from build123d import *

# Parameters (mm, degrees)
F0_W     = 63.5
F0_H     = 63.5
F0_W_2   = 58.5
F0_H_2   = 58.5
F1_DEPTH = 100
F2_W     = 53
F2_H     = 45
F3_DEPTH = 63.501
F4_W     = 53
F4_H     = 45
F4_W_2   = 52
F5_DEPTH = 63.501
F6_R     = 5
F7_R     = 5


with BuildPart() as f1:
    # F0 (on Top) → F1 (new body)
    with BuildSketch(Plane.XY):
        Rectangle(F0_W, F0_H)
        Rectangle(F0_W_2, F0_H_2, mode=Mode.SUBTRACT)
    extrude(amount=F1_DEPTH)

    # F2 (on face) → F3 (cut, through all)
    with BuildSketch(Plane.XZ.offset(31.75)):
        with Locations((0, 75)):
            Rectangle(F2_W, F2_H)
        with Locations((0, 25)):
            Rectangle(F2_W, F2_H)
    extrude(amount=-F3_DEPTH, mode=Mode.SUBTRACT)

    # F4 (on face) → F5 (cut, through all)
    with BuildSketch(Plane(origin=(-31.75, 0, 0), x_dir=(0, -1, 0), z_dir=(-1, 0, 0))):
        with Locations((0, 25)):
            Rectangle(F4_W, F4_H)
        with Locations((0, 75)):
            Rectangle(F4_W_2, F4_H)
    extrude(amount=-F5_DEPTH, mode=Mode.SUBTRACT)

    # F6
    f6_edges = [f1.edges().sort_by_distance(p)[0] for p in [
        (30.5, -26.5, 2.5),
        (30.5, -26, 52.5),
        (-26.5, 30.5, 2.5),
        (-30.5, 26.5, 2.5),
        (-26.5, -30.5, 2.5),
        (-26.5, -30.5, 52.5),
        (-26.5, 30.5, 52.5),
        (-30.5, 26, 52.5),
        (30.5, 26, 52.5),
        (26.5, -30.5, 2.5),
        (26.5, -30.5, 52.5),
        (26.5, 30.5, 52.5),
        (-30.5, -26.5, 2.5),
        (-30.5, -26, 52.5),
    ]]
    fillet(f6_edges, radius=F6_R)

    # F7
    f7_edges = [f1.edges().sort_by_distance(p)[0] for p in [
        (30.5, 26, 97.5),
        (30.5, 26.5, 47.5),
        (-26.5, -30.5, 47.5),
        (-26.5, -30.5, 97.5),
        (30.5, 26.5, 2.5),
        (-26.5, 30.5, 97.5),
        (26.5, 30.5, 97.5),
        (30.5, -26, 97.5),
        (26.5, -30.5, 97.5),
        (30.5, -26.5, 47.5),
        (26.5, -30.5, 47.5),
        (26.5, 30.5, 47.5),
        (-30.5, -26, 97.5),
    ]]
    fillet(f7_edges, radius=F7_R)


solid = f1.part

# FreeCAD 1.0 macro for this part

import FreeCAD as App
import Part
import Sketcher

V = App.Vector


def edges_at(feature, points):
    """Names of the edges that pass closest to the given points."""
    edges = feature.Shape.Edges
    near = lambda p: min(range(len(edges)), key=lambda i: edges[i].distToShape(Part.Vertex(*p))[0])
    return sorted({f"Edge{near(p) + 1}" for p in points})


def add_polygon(sketch, points):
    """Adds a closed chain of lines whose ends are joined by coincident constraints."""
    first, n = sketch.GeometryCount, len(points)
    for a, b in zip(points, points[1:] + points[:1]):
        sketch.addGeometry(Part.LineSegment(App.Vector(*a, 0), App.Vector(*b, 0)), False)
    for i in range(n):
        sketch.addConstraint(Sketcher.Constraint("Coincident", first + i, 2, first + (i + 1) % n, 1))

doc = App.newDocument("Part")
params = doc.addObject("Spreadsheet::Sheet", "Params")
for row, (alias, value) in enumerate([
    ("sketch1_width", "63.5 mm"),
    ("sketch1_width2", "58.5 mm"),
    ("pad1_length", "100 mm"),
    ("sketch2_width", "53 mm"),
    ("sketch2_height", "45 mm"),
    ("sketch3_width", "53 mm"),
    ("sketch3_width2", "52 mm"),
    ("sketch3_height", "45 mm"),
    ("fillet_radius", "5 mm"),
    ("fillet2_radius", "5 mm"),
], start=1):
    params.set(f"A{row}", alias)
    params.set(f"B{row}", "=" + value)
    params.setAlias(f"B{row}", alias)

body = doc.addObject("PartDesign::Body", "Body")

# Sketch on XY plane
sketch1 = doc.addObject("Sketcher::SketchObject", "Sketch")
body.addObject(sketch1)
sketch1.AttachmentSupport = (doc.XY_Plane, [""])
sketch1.MapMode = "FlatFace"
add_polygon(sketch1, [(-31.75, 31.75), (-31.75, -31.75), (31.75, -31.75), (31.75, 31.75)])  # lines 0-3
add_polygon(sketch1, [(29.25, -29.25), (-29.25, -29.25), (-29.25, 29.25), (29.25, 29.25)])  # lines 4-7
sketch1.addConstraint(Sketcher.Constraint("Vertical", 0))
sketch1.addConstraint(Sketcher.Constraint("Horizontal", 1))
sketch1.addConstraint(Sketcher.Constraint("Vertical", 2))
sketch1.addConstraint(Sketcher.Constraint("Horizontal", 3))
sketch1.addConstraint(Sketcher.Constraint("Horizontal", 4))
sketch1.addConstraint(Sketcher.Constraint("Vertical", 5))
sketch1.addConstraint(Sketcher.Constraint("Horizontal", 6))
sketch1.addConstraint(Sketcher.Constraint("Vertical", 7))
sketch1.addConstraint(Sketcher.Constraint("Symmetric", 0, 2, 2, 2, -1, 1))
sketch1.addConstraint(Sketcher.Constraint("Symmetric", 4, 2, 6, 2, -1, 1))
sketch1.addConstraint(Sketcher.Constraint("Equal", 3, 0))
sketch1.addConstraint(Sketcher.Constraint("Equal", 6, 5))
sketch1.addConstraint(Sketcher.Constraint("DistanceX", 1, 1, 1, 2, 63.5))
sketch1.addConstraint(Sketcher.Constraint("DistanceX", 4, 2, 4, 1, 58.5))
sketch1.setExpression("Constraints[20]", "Params.sketch1_width")
sketch1.setExpression("Constraints[21]", "Params.sketch1_width2")
pad1 = doc.addObject("PartDesign::Pad", "Pad")
body.addObject(pad1)
pad1.Profile = sketch1
pad1.setExpression("Length", "Params.pad1_length")

# Sketch on XZ plane
sketch2 = doc.addObject("Sketcher::SketchObject", "Sketch001")
body.addObject(sketch2)
sketch2.AttachmentSupport = (doc.XZ_Plane, [""])
sketch2.MapMode = "FlatFace"
sketch2.AttachmentOffset = App.Placement(V(0, 0, 31.75), App.Rotation())
add_polygon(sketch2, [(-26.5, 97.5), (-26.5, 52.5), (26.5, 52.5), (26.5, 97.5)])  # lines 0-3
add_polygon(sketch2, [(-26.5, 47.5), (-26.5, 2.5), (26.5, 2.5), (26.5, 47.5)])  # lines 4-7
sketch2.addConstraint(Sketcher.Constraint("Vertical", 0))
sketch2.addConstraint(Sketcher.Constraint("Horizontal", 1))
sketch2.addConstraint(Sketcher.Constraint("Vertical", 2))
sketch2.addConstraint(Sketcher.Constraint("Horizontal", 3))
sketch2.addConstraint(Sketcher.Constraint("Vertical", 4))
sketch2.addConstraint(Sketcher.Constraint("Horizontal", 5))
sketch2.addConstraint(Sketcher.Constraint("Vertical", 6))
sketch2.addConstraint(Sketcher.Constraint("Horizontal", 7))
sketch2.addConstraint(Sketcher.Constraint("Vertical", 3, 2, 4, 2))
sketch2.addConstraint(Sketcher.Constraint("Vertical", 2, 2, 5, 2))
sketch2.addConstraint(Sketcher.Constraint("Equal", 2, 4))
sketch2.addConstraint(Sketcher.Constraint("DistanceX", 1, 1, 1, 2, 53.0))
sketch2.addConstraint(Sketcher.Constraint("DistanceY", 0, 2, 0, 1, 45.0))
sketch2.addConstraint(Sketcher.Constraint("DistanceY", 4, 2, 0, 2, 50.0))
sketch2.addConstraint(Sketcher.Constraint("DistanceX", 0, 2, -1, 1, 26.5))
sketch2.addConstraint(Sketcher.Constraint("DistanceY", -1, 1, 0, 2, 52.5))
sketch2.setExpression("Constraints[19]", "Params.sketch2_width")
sketch2.setExpression("Constraints[20]", "Params.sketch2_height")
pocket1 = doc.addObject("PartDesign::Pocket", "Pocket")
body.addObject(pocket1)
pocket1.Profile = sketch2
pocket1.Type = "ThroughAll"

# Sketch on YZ plane
sketch3 = doc.addObject("Sketcher::SketchObject", "Sketch002")
body.addObject(sketch3)
sketch3.AttachmentSupport = (doc.YZ_Plane, [""])
sketch3.MapMode = "FlatFace"
sketch3.AttachmentOffset = App.Placement(V(0, 0, -31.75), App.Rotation())
add_polygon(sketch3, [(26.5, 47.5), (26.5, 2.5), (-26.5, 2.5), (-26.5, 47.5)])  # lines 0-3
add_polygon(sketch3, [(26, 97.5), (26, 52.5), (-26, 52.5), (-26, 97.5)])  # lines 4-7
sketch3.addConstraint(Sketcher.Constraint("Vertical", 0))
sketch3.addConstraint(Sketcher.Constraint("Horizontal", 1))
sketch3.addConstraint(Sketcher.Constraint("Vertical", 2))
sketch3.addConstraint(Sketcher.Constraint("Horizontal", 3))
sketch3.addConstraint(Sketcher.Constraint("Vertical", 4))
sketch3.addConstraint(Sketcher.Constraint("Horizontal", 5))
sketch3.addConstraint(Sketcher.Constraint("Vertical", 6))
sketch3.addConstraint(Sketcher.Constraint("Horizontal", 7))
sketch3.addConstraint(Sketcher.Constraint("Equal", 2, 4))
sketch3.addConstraint(Sketcher.Constraint("DistanceX", 1, 2, 1, 1, 53.0))
sketch3.addConstraint(Sketcher.Constraint("DistanceX", 5, 2, 5, 1, 52.0))
sketch3.addConstraint(Sketcher.Constraint("DistanceY", 0, 2, 0, 1, 45.0))
sketch3.addConstraint(Sketcher.Constraint("DistanceX", -1, 1, 4, 2, 26.0))
sketch3.addConstraint(Sketcher.Constraint("DistanceY", 3, 2, 4, 2, 5.0))
sketch3.addConstraint(Sketcher.Constraint("DistanceX", -1, 1, 0, 2, 26.5))
sketch3.addConstraint(Sketcher.Constraint("DistanceY", -1, 1, 0, 2, 2.5))
sketch3.setExpression("Constraints[17]", "Params.sketch3_width")
sketch3.setExpression("Constraints[18]", "Params.sketch3_width2")
sketch3.setExpression("Constraints[19]", "Params.sketch3_height")
pocket2 = doc.addObject("PartDesign::Pocket", "Pocket001")
body.addObject(pocket2)
pocket2.Profile = sketch3
pocket2.Type = "ThroughAll"
pocket2.Reversed = True
doc.recompute()

fillet = doc.addObject("PartDesign::Fillet", "Fillet")
body.addObject(fillet)
fillet.Base = (pocket2, edges_at(pocket2, [
    (30.5, -26.5, 2.5),
    (30.5, -26, 52.5),
    (-26.5, 30.5, 2.5),
    (-30.5, 26.5, 2.5),
    (-26.5, -30.5, 2.5),
    (-26.5, -30.5, 52.5),
    (-26.5, 30.5, 52.5),
    (-30.5, 26, 52.5),
    (30.5, 26, 52.5),
    (26.5, -30.5, 2.5),
    (26.5, -30.5, 52.5),
    (26.5, 30.5, 52.5),
    (-30.5, -26.5, 2.5),
    (-30.5, -26, 52.5),
]))
fillet.setExpression("Radius", "Params.fillet_radius")
doc.recompute()

fillet2 = doc.addObject("PartDesign::Fillet", "Fillet001")
body.addObject(fillet2)
fillet2.Base = (fillet, edges_at(fillet, [
    (30.5, 26, 97.5),
    (30.5, 26.5, 47.5),
    (-26.5, -30.5, 47.5),
    (-26.5, -30.5, 97.5),
    (30.5, 26.5, 2.5),
    (-26.5, 30.5, 97.5),
    (26.5, 30.5, 97.5),
    (30.5, -26, 97.5),
    (26.5, -30.5, 97.5),
    (30.5, -26.5, 47.5),
    (26.5, -30.5, 47.5),
    (26.5, 30.5, 47.5),
    (-30.5, -26, 97.5),
]))
fillet2.setExpression("Radius", "Params.fillet2_radius")

doc.recompute()
